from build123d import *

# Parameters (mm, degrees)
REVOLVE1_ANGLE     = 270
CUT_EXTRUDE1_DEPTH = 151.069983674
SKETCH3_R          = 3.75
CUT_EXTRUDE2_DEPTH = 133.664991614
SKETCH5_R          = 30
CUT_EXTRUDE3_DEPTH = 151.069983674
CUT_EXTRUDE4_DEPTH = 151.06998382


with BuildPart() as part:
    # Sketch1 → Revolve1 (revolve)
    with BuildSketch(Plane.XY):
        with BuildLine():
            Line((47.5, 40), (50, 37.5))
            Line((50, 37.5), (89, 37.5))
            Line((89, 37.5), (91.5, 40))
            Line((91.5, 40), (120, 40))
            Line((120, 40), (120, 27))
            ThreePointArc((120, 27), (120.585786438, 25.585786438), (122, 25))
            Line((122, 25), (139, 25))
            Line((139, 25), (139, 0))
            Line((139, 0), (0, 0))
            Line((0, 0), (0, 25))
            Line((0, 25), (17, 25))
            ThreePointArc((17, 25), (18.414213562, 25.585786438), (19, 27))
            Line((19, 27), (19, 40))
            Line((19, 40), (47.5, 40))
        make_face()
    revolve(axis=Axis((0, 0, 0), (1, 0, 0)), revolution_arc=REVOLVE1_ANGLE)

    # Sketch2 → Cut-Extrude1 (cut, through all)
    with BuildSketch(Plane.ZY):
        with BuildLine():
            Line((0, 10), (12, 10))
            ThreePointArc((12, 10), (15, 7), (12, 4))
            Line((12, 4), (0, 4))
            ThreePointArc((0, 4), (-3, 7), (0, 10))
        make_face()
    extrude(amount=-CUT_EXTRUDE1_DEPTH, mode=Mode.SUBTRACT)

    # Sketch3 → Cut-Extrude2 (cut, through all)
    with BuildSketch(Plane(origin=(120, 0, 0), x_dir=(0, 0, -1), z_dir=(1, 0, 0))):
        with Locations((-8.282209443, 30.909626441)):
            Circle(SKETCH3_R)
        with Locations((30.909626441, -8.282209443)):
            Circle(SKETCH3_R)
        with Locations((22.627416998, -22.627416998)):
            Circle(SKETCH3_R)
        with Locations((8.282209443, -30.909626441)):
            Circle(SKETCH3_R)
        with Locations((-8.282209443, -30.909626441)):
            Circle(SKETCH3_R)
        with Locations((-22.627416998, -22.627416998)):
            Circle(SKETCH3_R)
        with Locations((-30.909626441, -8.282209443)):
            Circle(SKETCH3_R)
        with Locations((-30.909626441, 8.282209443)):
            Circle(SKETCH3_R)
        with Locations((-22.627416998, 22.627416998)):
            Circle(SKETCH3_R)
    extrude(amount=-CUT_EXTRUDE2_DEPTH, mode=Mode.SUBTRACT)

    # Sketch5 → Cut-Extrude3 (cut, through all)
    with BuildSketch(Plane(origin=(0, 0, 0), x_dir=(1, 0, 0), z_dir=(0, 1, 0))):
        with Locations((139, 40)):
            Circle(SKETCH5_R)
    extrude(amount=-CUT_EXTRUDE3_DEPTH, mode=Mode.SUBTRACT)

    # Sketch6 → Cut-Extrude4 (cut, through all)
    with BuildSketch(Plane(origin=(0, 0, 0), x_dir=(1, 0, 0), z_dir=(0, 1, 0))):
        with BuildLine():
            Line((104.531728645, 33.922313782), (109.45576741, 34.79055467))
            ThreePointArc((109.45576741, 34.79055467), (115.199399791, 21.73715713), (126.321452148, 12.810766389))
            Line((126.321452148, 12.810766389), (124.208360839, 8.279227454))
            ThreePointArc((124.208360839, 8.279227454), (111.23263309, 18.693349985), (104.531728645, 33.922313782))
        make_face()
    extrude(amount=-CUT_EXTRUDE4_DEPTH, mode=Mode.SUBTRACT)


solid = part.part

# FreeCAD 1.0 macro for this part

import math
import FreeCAD as App
import Part
import Sketcher
from FreeCAD import Vector
Q = App.Units.Quantity

doc = App.newDocument("Part")
body = doc.addObject("PartDesign::Body", "Body")

# Sketch on XY plane
sketch1 = body.newObject("Sketcher::SketchObject", "Sketch")
sketch1.AttachmentSupport = (doc.getObject("XY_Plane"), [""])
sketch1.MapMode = "FlatFace"
sketch1.addGeometry([
    Part.LineSegment(Vector(50, 37.5, 0), Vector(47.5, 40, 0)),  # 0
    Part.LineSegment(Vector(47.5, 40, 0), Vector(19, 40, 0)),  # 1
    Part.LineSegment(Vector(19, 40, 0), Vector(19, 27, 0)),  # 2
    Part.ArcOfCircle(Part.Circle(Vector(17, 27, 0), Vector(0, 0, 1), 2), math.radians(-90), math.radians(0)),  # 3
    Part.LineSegment(Vector(17, 25, 0), Vector(0, 25, 0)),  # 4
    Part.LineSegment(Vector(0, 25, 0), Vector(0, 0, 0)),  # 5
    Part.LineSegment(Vector(0, 0, 0), Vector(139, 0, 0)),  # 6
    Part.LineSegment(Vector(139, 0, 0), Vector(139, 25, 0)),  # 7
    Part.LineSegment(Vector(139, 25, 0), Vector(122, 25, 0)),  # 8
    Part.ArcOfCircle(Part.Circle(Vector(122, 27, 0), Vector(0, 0, 1), 2), math.radians(-180), math.radians(-90)),  # 9
    Part.LineSegment(Vector(120, 27, 0), Vector(120, 40, 0)),  # 10
    Part.LineSegment(Vector(120, 40, 0), Vector(91.5, 40, 0)),  # 11
    Part.LineSegment(Vector(91.5, 40, 0), Vector(89, 37.5, 0)),  # 12
    Part.LineSegment(Vector(89, 37.5, 0), Vector(50, 37.5, 0)),  # 13
], False)
sketch1.addConstraint([
    Sketcher.Constraint("Coincident", 0, 2, 1, 1),
    Sketcher.Constraint("Coincident", 1, 2, 2, 1),
    Sketcher.Constraint("Tangent", 2, 2, 3, 2),
    Sketcher.Constraint("Tangent", 3, 1, 4, 1),
    Sketcher.Constraint("Coincident", 4, 2, 5, 1),
    Sketcher.Constraint("Coincident", 5, 2, 6, 1),
    Sketcher.Constraint("Coincident", 6, 2, 7, 1),
    Sketcher.Constraint("Coincident", 7, 2, 8, 1),
    Sketcher.Constraint("Tangent", 8, 2, 9, 2),
    Sketcher.Constraint("Tangent", 9, 1, 10, 1),
    Sketcher.Constraint("Coincident", 10, 2, 11, 1),
    Sketcher.Constraint("Coincident", 11, 2, 12, 1),
    Sketcher.Constraint("Coincident", 12, 2, 13, 1),
    Sketcher.Constraint("Coincident", 13, 2, 0, 1),
    Sketcher.Constraint("Horizontal", 1),
    Sketcher.Constraint("Vertical", 2),
    Sketcher.Constraint("Horizontal", 4),
    Sketcher.Constraint("Vertical", 5),
    Sketcher.Constraint("Horizontal", 6),
    Sketcher.Constraint("Vertical", 7),
    Sketcher.Constraint("Horizontal", 8),
    Sketcher.Constraint("Vertical", 10),
    Sketcher.Constraint("Horizontal", 11),
    Sketcher.Constraint("Horizontal", 13),
    Sketcher.Constraint("Coincident", 5, 2, -1, 1),
    Sketcher.Constraint("Equal", 3, 9),
    Sketcher.Constraint("Perpendicular", 0, 12),
    Sketcher.Constraint("Horizontal", 3, 3, 9, 3),
    Sketcher.Constraint("Horizontal", 1, 2, 10, 2),
    Sketcher.Constraint("Equal", 4, 8),
    Sketcher.Constraint("Equal", 1, 11),
    Sketcher.Constraint("Equal", 0, 12),
    Sketcher.Constraint("Radius", 3, 2.0),
    Sketcher.Constraint("DistanceX", 4, 2, 4, 1, 17.0),
    Sketcher.Constraint("DistanceX", 6, 1, 6, 2, 139.0),
    Sketcher.Constraint("DistanceX", 13, 2, 13, 1, 39.0),
    Sketcher.Constraint("DistanceY", 2, 2, 2, 1, 13.0),
    Sketcher.Constraint("DistanceY", 5, 2, 5, 1, 25.0),
    Sketcher.Constraint("DistanceX", 1, 2, 1, 1, 28.5),
])
revolution = body.newObject("PartDesign::Revolution", "Revolution")
revolution.Profile = sketch1
revolution.ReferenceAxis = (sketch1, ["H_Axis"])
revolution.Angle = 270

# Sketch on YZ plane
sketch2 = body.newObject("Sketcher::SketchObject", "Sketch001")
sketch2.AttachmentSupport = (doc.getObject("YZ_Plane"), [""])
sketch2.MapMode = "FlatFace"
sketch2.addGeometry([
    Part.LineSegment(Vector(10, 12, 0), Vector(10, 0, 0)),
    Part.ArcOfCircle(Part.Circle(Vector(7, 0, 0), Vector(0, 0, 1), 3), math.radians(180), math.radians(360)),
    Part.LineSegment(Vector(4, 0, 0), Vector(4, 12, 0)),
    Part.ArcOfCircle(Part.Circle(Vector(7, 12, 0), Vector(0, 0, 1), 3), math.radians(0), math.radians(180)),
], False)
sketch2.addConstraint([
    Sketcher.Constraint("Tangent", 0, 2, 1, 2),
    Sketcher.Constraint("Tangent", 1, 1, 2, 1),
    Sketcher.Constraint("Tangent", 2, 2, 3, 2),
    Sketcher.Constraint("Tangent", 3, 1, 0, 1),
    Sketcher.Constraint("Vertical", 0),
    Sketcher.Constraint("Vertical", 2),
    Sketcher.Constraint("PointOnObject", 1, 3, -1),
    Sketcher.Constraint("Radius", 1, 3.0),
    Sketcher.Constraint("DistanceY", 0, 2, 0, 1, 12.0),
    Sketcher.Constraint("DistanceX", -1, 1, 1, 3, 7.0),
])
pocket1 = body.newObject("PartDesign::Pocket", "Pocket")
pocket1.Profile = sketch2
pocket1.Type = "ThroughAll"
pocket1.Reversed = True

# Sketch on YZ plane
sketch3 = body.newObject("Sketcher::SketchObject", "Sketch002")
sketch3.AttachmentSupport = (doc.getObject("YZ_Plane"), [""])
sketch3.MapMode = "FlatFace"
sketch3.AttachmentOffset = App.Placement(Vector(0, 0, 120), App.Rotation())
sketch3.addGeometry([
    Part.Circle(Vector(30.9, 8.3, 0), Vector(0, 0, 1), 3.8),  # 0
    Part.Circle(Vector(-8.3, -30.9, 0), Vector(0, 0, 1), 3.8),  # 1
    Part.Circle(Vector(-22.6, -22.6, 0), Vector(0, 0, 1), 3.8),  # 2
    Part.Circle(Vector(-30.9, -8.3, 0), Vector(0, 0, 1), 3.8),  # 3
    Part.Circle(Vector(-30.9, 8.3, 0), Vector(0, 0, 1), 3.8),  # 4
    Part.Circle(Vector(-22.6, 22.6, 0), Vector(0, 0, 1), 3.8),  # 5
    Part.Circle(Vector(-8.3, 30.9, 0), Vector(0, 0, 1), 3.8),  # 6
    Part.Circle(Vector(8.3, 30.9, 0), Vector(0, 0, 1), 3.8),  # 7
    Part.Circle(Vector(22.6, 22.6, 0), Vector(0, 0, 1), 3.8),  # 8
], False)
sketch3.addConstraint([
    Sketcher.Constraint("Equal", 0, 1),
    Sketcher.Constraint("Equal", 1, 2),
    Sketcher.Constraint("Equal", 2, 3),
    Sketcher.Constraint("Equal", 3, 4),
    Sketcher.Constraint("Equal", 4, 5),
    Sketcher.Constraint("Equal", 5, 6),
    Sketcher.Constraint("Equal", 6, 7),
    Sketcher.Constraint("Equal", 7, 8),
    Sketcher.Constraint("Symmetric", 0, 3, 3, 3, -1, 1),
    Sketcher.Constraint("Symmetric", 1, 3, 7, 3, -1, 1),
    Sketcher.Constraint("Symmetric", 2, 3, 8, 3, -1, 1),
    Sketcher.Constraint("Symmetric", 0, 3, 4, 3, -2),
    Sketcher.Constraint("Symmetric", 6, 3, 7, 3, -2),
    Sketcher.Constraint("Symmetric", 5, 3, 8, 3, -2),
    Sketcher.Constraint("Diameter", 0, 7.5),
    Sketcher.Constraint("DistanceY", -1, 1, 0, 3, 8.282209),
    Sketcher.Constraint("DistanceX", 1, 3, -1, 1, 8.282209),
    Sketcher.Constraint("DistanceY", 1, 3, 2, 3, 8.282209),
    Sketcher.Constraint("DistanceX", 3, 3, 2, 3, 8.282209),
    Sketcher.Constraint("DistanceX", -1, 1, 0, 3, 30.909626),
    Sketcher.Constraint("DistanceY", 1, 3, -1, 1, 30.909626),
])
pocket2 = body.newObject("PartDesign::Pocket", "Pocket001")
pocket2.Profile = sketch3
pocket2.Type = "ThroughAll"

# Sketch on XZ plane
sketch4 = body.newObject("Sketcher::SketchObject", "Sketch003")
sketch4.AttachmentSupport = (doc.getObject("XZ_Plane"), [""])
sketch4.MapMode = "FlatFace"
sketch4.addGeometry(Part.Circle(Vector(139, -40, 0), Vector(0, 0, 1), 30), False)
sketch4.addConstraint([
    Sketcher.Constraint("Diameter", 0, 60.0),
    Sketcher.Constraint("DistanceX", -1, 1, 0, 3, 139.0),
    Sketcher.Constraint("DistanceY", 0, 3, -1, 1, 40.0),
])
pocket3 = body.newObject("PartDesign::Pocket", "Pocket002")
pocket3.Profile = sketch4
pocket3.Type = "ThroughAll"
pocket3.Reversed = True

# Sketch on XZ plane
sketch5 = body.newObject("Sketcher::SketchObject", "Sketch004")
sketch5.AttachmentSupport = (doc.getObject("XZ_Plane"), [""])
sketch5.MapMode = "FlatFace"
sketch5.addGeometry([
    Part.LineSegment(Vector(109.5, -34.8, 0), Vector(104.5, -33.9, 0)),
    Part.ArcOfCircle(Part.Circle(Vector(139, -40, 0), Vector(0, 0, 1), 35), math.radians(115), math.radians(170)),
    Part.LineSegment(Vector(124.2, -8.3, 0), Vector(126.3, -12.8, 0)),
    Part.ArcOfCircle(Part.Circle(Vector(139, -40, 0), Vector(0, 0, 1), 30), math.radians(115), math.radians(170)),
], False)
sketch5.addConstraint([
    Sketcher.Constraint("Coincident", 0, 2, 1, 2),
    Sketcher.Constraint("Coincident", 1, 1, 2, 1),
    Sketcher.Constraint("Coincident", 2, 2, 3, 1),
    Sketcher.Constraint("Coincident", 3, 2, 0, 1),
    Sketcher.Constraint("Coincident", 3, 3, 1, 3),
    Sketcher.Constraint("Radius", 1, 35.0),
    Sketcher.Constraint("Radius", 3, 30.0),
    Sketcher.Constraint("Angle", 0, Q("170 deg")),
    Sketcher.Constraint("Angle", 2, Q("-65 deg")),
    Sketcher.Constraint("DistanceX", -1, 1, 1, 3, 139.0),
    Sketcher.Constraint("DistanceY", 1, 3, -1, 1, 40.0),
    Sketcher.Constraint("DistanceX", -1, 1, 0, 2, 104.531729),
    Sketcher.Constraint("DistanceX", -1, 1, 1, 1, 124.208361),
])
pocket4 = body.newObject("PartDesign::Pocket", "Pocket003")
pocket4.Profile = sketch5
pocket4.Type = "ThroughAll"
pocket4.Reversed = True

doc.recompute()
